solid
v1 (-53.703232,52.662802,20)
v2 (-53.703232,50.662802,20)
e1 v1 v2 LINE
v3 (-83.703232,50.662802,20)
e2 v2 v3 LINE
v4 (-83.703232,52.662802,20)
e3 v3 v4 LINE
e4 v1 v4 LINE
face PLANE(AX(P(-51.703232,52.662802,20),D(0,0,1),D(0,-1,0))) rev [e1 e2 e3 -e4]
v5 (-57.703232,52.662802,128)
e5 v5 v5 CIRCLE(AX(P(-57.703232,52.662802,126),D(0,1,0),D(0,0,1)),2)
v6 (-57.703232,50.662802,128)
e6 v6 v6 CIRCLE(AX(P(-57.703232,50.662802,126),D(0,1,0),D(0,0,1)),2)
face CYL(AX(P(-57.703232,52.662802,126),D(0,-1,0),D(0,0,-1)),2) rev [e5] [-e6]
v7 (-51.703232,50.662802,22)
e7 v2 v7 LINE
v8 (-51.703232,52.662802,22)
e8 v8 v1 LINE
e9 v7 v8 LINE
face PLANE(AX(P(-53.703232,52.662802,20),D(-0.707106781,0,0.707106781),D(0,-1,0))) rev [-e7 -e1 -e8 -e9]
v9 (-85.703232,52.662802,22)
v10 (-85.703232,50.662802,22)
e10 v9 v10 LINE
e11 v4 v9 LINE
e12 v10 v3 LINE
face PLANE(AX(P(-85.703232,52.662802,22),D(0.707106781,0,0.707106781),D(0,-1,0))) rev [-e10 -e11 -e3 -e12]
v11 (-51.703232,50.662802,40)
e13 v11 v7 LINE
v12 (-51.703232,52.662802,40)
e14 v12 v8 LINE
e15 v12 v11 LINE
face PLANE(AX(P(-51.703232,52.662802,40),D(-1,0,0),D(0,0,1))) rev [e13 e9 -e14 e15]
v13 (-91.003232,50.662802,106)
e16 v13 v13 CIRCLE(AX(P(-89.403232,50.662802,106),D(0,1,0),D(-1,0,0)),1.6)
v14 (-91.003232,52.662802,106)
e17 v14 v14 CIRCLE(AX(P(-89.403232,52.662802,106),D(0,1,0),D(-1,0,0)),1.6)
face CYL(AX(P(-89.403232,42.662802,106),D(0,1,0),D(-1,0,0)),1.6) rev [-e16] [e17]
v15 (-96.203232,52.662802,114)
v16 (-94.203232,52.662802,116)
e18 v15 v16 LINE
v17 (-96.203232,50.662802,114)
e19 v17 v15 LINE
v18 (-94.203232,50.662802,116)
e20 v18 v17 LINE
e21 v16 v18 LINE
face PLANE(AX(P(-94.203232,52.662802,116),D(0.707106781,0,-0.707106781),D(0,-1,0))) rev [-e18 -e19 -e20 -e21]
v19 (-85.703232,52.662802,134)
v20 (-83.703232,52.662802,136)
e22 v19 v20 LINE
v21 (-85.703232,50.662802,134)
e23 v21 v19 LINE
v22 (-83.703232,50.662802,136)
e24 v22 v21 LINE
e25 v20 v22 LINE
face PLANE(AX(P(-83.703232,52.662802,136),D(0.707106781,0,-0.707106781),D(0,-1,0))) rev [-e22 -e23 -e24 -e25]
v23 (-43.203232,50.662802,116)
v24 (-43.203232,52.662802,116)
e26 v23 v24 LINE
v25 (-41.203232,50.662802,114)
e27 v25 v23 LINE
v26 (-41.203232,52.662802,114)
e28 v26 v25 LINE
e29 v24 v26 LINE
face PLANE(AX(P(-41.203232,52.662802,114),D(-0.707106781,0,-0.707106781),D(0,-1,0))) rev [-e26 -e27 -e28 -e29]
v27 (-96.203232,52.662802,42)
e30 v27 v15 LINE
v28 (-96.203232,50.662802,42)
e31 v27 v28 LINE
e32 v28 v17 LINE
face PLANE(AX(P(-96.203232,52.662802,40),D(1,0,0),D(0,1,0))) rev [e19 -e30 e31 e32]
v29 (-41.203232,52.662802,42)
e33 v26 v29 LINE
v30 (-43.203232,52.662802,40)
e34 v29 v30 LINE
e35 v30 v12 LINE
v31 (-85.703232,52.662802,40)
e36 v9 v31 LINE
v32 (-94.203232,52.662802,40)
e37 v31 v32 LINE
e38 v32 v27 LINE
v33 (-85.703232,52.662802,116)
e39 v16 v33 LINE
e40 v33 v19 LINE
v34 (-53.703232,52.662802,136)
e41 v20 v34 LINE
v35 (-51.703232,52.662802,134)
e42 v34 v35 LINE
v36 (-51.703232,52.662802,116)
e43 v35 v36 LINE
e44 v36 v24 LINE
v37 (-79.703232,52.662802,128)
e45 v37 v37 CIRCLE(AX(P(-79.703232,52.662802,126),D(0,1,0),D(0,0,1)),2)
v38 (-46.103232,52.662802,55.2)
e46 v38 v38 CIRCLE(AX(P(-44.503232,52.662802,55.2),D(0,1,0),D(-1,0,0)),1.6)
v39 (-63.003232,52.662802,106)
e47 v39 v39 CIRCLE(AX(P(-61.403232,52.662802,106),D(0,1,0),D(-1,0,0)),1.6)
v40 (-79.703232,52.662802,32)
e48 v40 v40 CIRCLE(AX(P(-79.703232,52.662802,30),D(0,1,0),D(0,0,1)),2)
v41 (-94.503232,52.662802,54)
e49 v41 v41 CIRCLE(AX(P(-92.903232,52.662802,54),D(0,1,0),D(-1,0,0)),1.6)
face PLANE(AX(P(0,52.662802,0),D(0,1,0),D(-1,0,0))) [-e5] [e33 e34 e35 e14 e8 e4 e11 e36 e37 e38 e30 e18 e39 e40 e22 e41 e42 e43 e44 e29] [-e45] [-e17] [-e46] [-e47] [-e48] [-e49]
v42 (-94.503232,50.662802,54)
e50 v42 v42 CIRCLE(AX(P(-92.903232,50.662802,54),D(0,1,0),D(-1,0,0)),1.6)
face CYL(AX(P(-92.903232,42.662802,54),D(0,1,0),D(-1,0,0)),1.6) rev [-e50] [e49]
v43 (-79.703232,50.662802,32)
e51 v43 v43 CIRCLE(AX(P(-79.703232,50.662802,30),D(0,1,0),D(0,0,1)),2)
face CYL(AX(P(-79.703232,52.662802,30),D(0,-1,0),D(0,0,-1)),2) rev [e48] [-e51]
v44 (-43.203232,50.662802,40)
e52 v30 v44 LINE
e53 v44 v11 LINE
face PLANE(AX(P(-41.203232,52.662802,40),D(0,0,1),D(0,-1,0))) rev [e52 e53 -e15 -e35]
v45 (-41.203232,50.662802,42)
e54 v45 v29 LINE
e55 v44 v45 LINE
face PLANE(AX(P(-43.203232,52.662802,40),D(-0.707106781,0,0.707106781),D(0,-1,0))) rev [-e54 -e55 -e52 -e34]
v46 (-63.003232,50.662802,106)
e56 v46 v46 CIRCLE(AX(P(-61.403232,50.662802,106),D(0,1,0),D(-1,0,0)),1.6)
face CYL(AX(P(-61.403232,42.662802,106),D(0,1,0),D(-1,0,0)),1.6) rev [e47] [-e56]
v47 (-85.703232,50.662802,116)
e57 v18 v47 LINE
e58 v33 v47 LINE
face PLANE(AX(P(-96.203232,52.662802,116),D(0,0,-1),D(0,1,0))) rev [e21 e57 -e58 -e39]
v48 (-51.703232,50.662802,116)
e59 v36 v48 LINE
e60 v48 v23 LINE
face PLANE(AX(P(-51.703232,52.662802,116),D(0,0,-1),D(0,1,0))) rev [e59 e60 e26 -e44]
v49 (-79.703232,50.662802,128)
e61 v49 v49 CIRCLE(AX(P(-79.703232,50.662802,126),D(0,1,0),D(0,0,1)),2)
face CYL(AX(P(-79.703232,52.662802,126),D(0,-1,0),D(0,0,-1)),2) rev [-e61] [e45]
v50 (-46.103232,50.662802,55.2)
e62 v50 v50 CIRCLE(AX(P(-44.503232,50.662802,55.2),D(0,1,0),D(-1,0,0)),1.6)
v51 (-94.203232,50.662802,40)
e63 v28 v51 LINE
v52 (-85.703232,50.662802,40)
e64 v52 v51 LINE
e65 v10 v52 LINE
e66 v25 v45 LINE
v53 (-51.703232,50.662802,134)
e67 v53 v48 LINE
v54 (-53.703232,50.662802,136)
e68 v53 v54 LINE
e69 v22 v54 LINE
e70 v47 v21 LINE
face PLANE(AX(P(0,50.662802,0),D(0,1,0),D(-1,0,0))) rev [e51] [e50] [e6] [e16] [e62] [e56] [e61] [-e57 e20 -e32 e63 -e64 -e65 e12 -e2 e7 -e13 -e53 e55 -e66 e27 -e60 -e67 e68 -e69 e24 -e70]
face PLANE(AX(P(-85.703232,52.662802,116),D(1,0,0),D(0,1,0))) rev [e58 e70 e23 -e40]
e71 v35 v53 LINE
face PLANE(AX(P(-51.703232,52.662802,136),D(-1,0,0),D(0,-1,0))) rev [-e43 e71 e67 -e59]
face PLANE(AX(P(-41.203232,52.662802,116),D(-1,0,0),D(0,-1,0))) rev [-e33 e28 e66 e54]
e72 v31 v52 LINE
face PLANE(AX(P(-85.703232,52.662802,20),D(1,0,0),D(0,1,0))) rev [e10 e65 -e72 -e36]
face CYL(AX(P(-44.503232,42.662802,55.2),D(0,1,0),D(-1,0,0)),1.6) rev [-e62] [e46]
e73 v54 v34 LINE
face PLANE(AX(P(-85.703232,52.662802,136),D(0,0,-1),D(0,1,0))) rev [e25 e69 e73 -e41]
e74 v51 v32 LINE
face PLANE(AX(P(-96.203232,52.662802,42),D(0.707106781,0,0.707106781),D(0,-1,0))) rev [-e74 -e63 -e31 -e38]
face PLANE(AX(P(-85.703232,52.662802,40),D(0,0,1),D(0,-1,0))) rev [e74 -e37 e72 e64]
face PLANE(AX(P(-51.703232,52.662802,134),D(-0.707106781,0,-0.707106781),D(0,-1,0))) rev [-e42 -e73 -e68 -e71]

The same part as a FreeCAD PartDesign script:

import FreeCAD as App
import Part
import Sketcher
from FreeCAD import Vector
Q = App.Units.Quantity


def edges_at(feature, points):
    """Names of the edges that pass closest to the given points."""
    edges = feature.Shape.Edges
    near = lambda p: min(range(len(edges)), key=lambda i: edges[i].distToShape(Part.Vertex(*p))[0])
    return sorted({f"Edge{near(p) + 1}" for p in points})

doc = App.newDocument("Part")
body = doc.addObject("PartDesign::Body", "Body")

sketch1 = body.newObject("Sketcher::SketchObject", "Sketch")
sketch1.AttachmentSupport = (doc.getObject("XZ_Plane"), [""])
sketch1.MapMode = "FlatFace"
sketch1.AttachmentOffset = App.Placement(Vector(0, 0, -50.662802), App.Rotation())
sketch1.addGeometry([
    Part.LineSegment(Vector(-85.7, 20, 0), Vector(-85.7, 40, 0)),
    Part.LineSegment(Vector(-85.7, 40, 0), Vector(-96.2, 40, 0)),
    Part.LineSegment(Vector(-96.2, 40, 0), Vector(-96.2, 116, 0)),
    Part.LineSegment(Vector(-96.2, 116, 0), Vector(-85.7, 116, 0)),
    Part.LineSegment(Vector(-85.7, 116, 0), Vector(-85.7, 136, 0)),
    Part.LineSegment(Vector(-85.7, 136, 0), Vector(-51.7, 136, 0)),
    Part.LineSegment(Vector(-51.7, 136, 0), Vector(-51.7, 116, 0)),
    Part.LineSegment(Vector(-51.7, 116, 0), Vector(-41.2, 116, 0)),
    Part.LineSegment(Vector(-41.2, 116, 0), Vector(-41.2, 40, 0)),
    Part.LineSegment(Vector(-41.2, 40, 0), Vector(-51.7, 40, 0)),
    Part.LineSegment(Vector(-51.7, 40, 0), Vector(-51.7, 20, 0)),
    Part.LineSegment(Vector(-51.7, 20, 0), Vector(-85.7, 20, 0)),
    Part.Circle(Vector(-79.7, 126, 0), Vector(0, 0, 1), 2),
    Part.Circle(Vector(-57.7, 126, 0), Vector(0, 0, 1), 2),
    Part.Circle(Vector(-79.7, 30, 0), Vector(0, 0, 1), 2),
], False)
sketch1.addConstraint([
    Sketcher.Constraint("Coincident", 0, 2, 1, 1),
    Sketcher.Constraint("Coincident", 1, 2, 2, 1),
    Sketcher.Constraint("Coincident", 2, 2, 3, 1),
    Sketcher.Constraint("Coincident", 3, 2, 4, 1),
    Sketcher.Constraint("Coincident", 4, 2, 5, 1),
    Sketcher.Constraint("Coincident", 5, 2, 6, 1),
    Sketcher.Constraint("Coincident", 6, 2, 7, 1),
    Sketcher.Constraint("Coincident", 7, 2, 8, 1),
    Sketcher.Constraint("Coincident", 8, 2, 9, 1),
    Sketcher.Constraint("Coincident", 9, 2, 10, 1),
    Sketcher.Constraint("Coincident", 10, 2, 11, 1),
    Sketcher.Constraint("Coincident", 11, 2, 0, 1),
    Sketcher.Constraint("Vertical", 0),
    Sketcher.Constraint("Horizontal", 1),
    Sketcher.Constraint("Vertical", 2),
    Sketcher.Constraint("Horizontal", 3),
    Sketcher.Constraint("Vertical", 4),
    Sketcher.Constraint("Horizontal", 5),
    Sketcher.Constraint("Vertical", 6),
    Sketcher.Constraint("Horizontal", 7),
    Sketcher.Constraint("Vertical", 8),
    Sketcher.Constraint("Horizontal", 9),
    Sketcher.Constraint("Vertical", 10),
    Sketcher.Constraint("Horizontal", 11),
    Sketcher.Constraint("Equal", 12, 13),
    Sketcher.Constraint("Equal", 13, 14),
    Sketcher.Constraint("Horizontal", 12, 3, 13, 3),
    Sketcher.Constraint("Horizontal", 3, 2, 6, 2),
    Sketcher.Constraint("Horizontal", 1, 2, 8, 2),
    Sketcher.Constraint("Vertical", 12, 3, 14, 3),
    Sketcher.Constraint("Vertical", 0, 2, 3, 2),
    Sketcher.Constraint("Vertical", 6, 2, 9, 2),
    Sketcher.Constraint("Equal", 3, 7),
    Sketcher.Constraint("Equal", 0, 4),
    Sketcher.Constraint("Diameter", 12, Q("4 mm")),
    Sketcher.Constraint("DistanceX", 5, 1, 5, 2, Q("34 mm")),
    Sketcher.Constraint("DistanceY", 0, 1, 0, 2, Q("20 mm")),
    Sketcher.Constraint("DistanceY", 2, 1, 2, 2, Q("76 mm")),
    Sketcher.Constraint("DistanceX", 1, 2, 1, 1, Q("10.5 mm")),
    Sketcher.Constraint("DistanceY", -1, 1, 12, 3, Q("126 mm")),
    Sketcher.Constraint("DistanceY", -1, 1, 14, 3, Q("30 mm")),
    Sketcher.Constraint("DistanceY", -1, 1, 0, 2, Q("40 mm")),
    Sketcher.Constraint("DistanceX", 12, 3, 13, 3, Q("22 mm")),
    Sketcher.Constraint("DistanceX", 0, 2, 14, 3, Q("6 mm")),
    Sketcher.Constraint("DistanceX", 12, 3, -1, 1, Q("79.703232 mm")),
])
pad1 = body.newObject("PartDesign::Pad", "Pad")
pad1.Profile = sketch1
pad1.Length = 2
pad1.Reversed = True

sketch2 = body.newObject("Sketcher::SketchObject", "Sketch001")
sketch2.AttachmentSupport = (doc.getObject("XZ_Plane"), [""])
sketch2.MapMode = "FlatFace"
sketch2.AttachmentOffset = App.Placement(Vector(0, 0, -52.662802), App.Rotation())
sketch2.addGeometry([
    Part.Circle(Vector(-92.9, 54, 0), Vector(0, 0, 1), 1.6),
    Part.Circle(Vector(-44.5, 55.2, 0), Vector(0, 0, 1), 1.6),
    Part.Circle(Vector(-89.4, 106, 0), Vector(0, 0, 1), 1.6),
    Part.Circle(Vector(-61.4, 106, 0), Vector(0, 0, 1), 1.6),
], False)
sketch2.addConstraint([
    Sketcher.Constraint("Equal", 0, 1),
    Sketcher.Constraint("Equal", 1, 2),
    Sketcher.Constraint("Equal", 2, 3),
    Sketcher.Constraint("Horizontal", 2, 3, 3, 3),
    Sketcher.Constraint("Diameter", 0, Q("3.2 mm")),
    Sketcher.Constraint("DistanceY", -1, 1, 0, 3, Q("54 mm")),
    Sketcher.Constraint("DistanceY", -1, 1, 2, 3, Q("106 mm")),
    Sketcher.Constraint("DistanceX", 2, 3, 3, 3, Q("28 mm")),
    Sketcher.Constraint("DistanceY", -1, 1, 1, 3, Q("55.2 mm")),
    Sketcher.Constraint("DistanceX", 0, 3, 1, 3, Q("48.4 mm")),
    Sketcher.Constraint("DistanceX", 0, 3, 2, 3, Q("3.5 mm")),
    Sketcher.Constraint("DistanceX", 0, 3, -1, 1, Q("92.903232 mm")),
])
pocket1 = body.newObject("PartDesign::Pocket", "Pocket")
pocket1.Profile = sketch2
pocket1.Length = 10
pocket1.Reversed = True
doc.recompute()

chamfer = body.newObject("PartDesign::Chamfer", "Chamfer")
chamfer.Base = (pocket1, edges_at(pocket1, [
    (-51.703, 51.663, 20),
    (-41.203, 51.663, 40),
    (-41.203, 51.663, 116),
    (-51.703, 51.663, 136),
    (-85.703, 51.663, 136),
    (-96.203, 51.663, 116),
    (-96.203, 51.663, 40),
    (-85.703, 51.663, 20),
]))
chamfer.Size = 2

doc.recompute()
